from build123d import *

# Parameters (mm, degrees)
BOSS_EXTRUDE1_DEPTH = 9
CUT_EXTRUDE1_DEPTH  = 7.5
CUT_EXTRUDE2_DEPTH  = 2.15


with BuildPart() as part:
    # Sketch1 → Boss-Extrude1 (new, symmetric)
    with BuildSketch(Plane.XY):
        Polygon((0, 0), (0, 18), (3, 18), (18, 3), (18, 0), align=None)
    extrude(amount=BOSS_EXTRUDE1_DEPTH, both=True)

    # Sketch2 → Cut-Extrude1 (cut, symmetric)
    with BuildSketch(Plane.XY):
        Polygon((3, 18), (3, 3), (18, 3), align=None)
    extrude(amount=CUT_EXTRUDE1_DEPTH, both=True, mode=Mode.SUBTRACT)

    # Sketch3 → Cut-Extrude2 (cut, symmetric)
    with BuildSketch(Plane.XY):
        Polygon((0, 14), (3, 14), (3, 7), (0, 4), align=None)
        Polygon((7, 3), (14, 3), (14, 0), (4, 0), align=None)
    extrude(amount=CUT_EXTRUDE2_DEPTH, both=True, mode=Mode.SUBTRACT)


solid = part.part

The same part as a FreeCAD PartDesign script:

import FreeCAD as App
import Part
import Sketcher

V = App.Vector


def add_polygon(sketch, points):
    """Adds a closed chain of lines whose ends are joined by coincident constraints."""
    first, n = sketch.GeometryCount, len(points)
    for a, b in zip(points, points[1:] + points[:1]):
        sketch.addGeometry(Part.LineSegment(App.Vector(*a, 0), App.Vector(*b, 0)), False)
    for i in range(n):
        sketch.addConstraint(Sketcher.Constraint("Coincident", first + i, 2, first + (i + 1) % n, 1))

doc = App.newDocument("Part")
body = doc.addObject("PartDesign::Body", "Body")

# Sketch on XY plane
sketch1 = doc.addObject("Sketcher::SketchObject", "Sketch")
body.addObject(sketch1)
sketch1.AttachmentSupport = (doc.XY_Plane, [""])
sketch1.MapMode = "FlatFace"
add_polygon(sketch1, [(0, 18), (0, 0), (18, 0), (18, 3), (3, 18)])  # lines 0-4
sketch1.addConstraint([
    Sketcher.Constraint("Vertical", 0),
    Sketcher.Constraint("Horizontal", 1),
    Sketcher.Constraint("Vertical", 2),
    Sketcher.Constraint("Horizontal", 4),
    Sketcher.Constraint("Coincident", 0, 2, -1, 1),
    Sketcher.Constraint("Equal", 1, 0),
    Sketcher.Constraint("Equal", 4, 2),
    Sketcher.Constraint("DistanceX", 1, 1, 1, 2, 18.0),
    Sketcher.Constraint("DistanceX", 4, 2, 4, 1, 3.0),
])
pad1 = doc.addObject("PartDesign::Pad", "Pad")
body.addObject(pad1)
pad1.Profile = sketch1
pad1.Length = 18
pad1.Midplane = True

# Sketch on XY plane
sketch2 = doc.addObject("Sketcher::SketchObject", "Sketch001")
body.addObject(sketch2)
sketch2.AttachmentSupport = (doc.XY_Plane, [""])
sketch2.MapMode = "FlatFace"
add_polygon(sketch2, [(3, 18), (3, 3), (18, 3)])  # lines 0-2
sketch2.addConstraint([
    Sketcher.Constraint("Vertical", 0),
    Sketcher.Constraint("Horizontal", 1),
    Sketcher.Constraint("Equal", 1, 0),
    Sketcher.Constraint("DistanceX", 1, 1, 1, 2, 15.0),
    Sketcher.Constraint("DistanceX", -1, 1, 0, 2, 3.0),
    Sketcher.Constraint("DistanceY", -1, 1, 0, 2, 3.0),
])
pocket1 = doc.addObject("PartDesign::Pocket", "Pocket")
body.addObject(pocket1)
pocket1.Profile = sketch2
pocket1.Length = 15
pocket1.Midplane = True

# Sketch on XY plane
sketch3 = doc.addObject("Sketcher::SketchObject", "Sketch002")
body.addObject(sketch3)
sketch3.AttachmentSupport = (doc.XY_Plane, [""])
sketch3.MapMode = "FlatFace"
add_polygon(sketch3, [(3, 14), (0, 14), (0, 4), (3, 7)])  # lines 0-3
add_polygon(sketch3, [(14, 3), (7, 3), (4, 0), (14, 0)])  # lines 4-7
sketch3.addConstraint([
    Sketcher.Constraint("Horizontal", 0),
    Sketcher.Constraint("Vertical", 1),
    Sketcher.Constraint("Vertical", 3),
    Sketcher.Constraint("Horizontal", 4),
    Sketcher.Constraint("Horizontal", 6),
    Sketcher.Constraint("Vertical", 7),
    Sketcher.Constraint("PointOnObject", 0, 2, -2),
    Sketcher.Constraint("PointOnObject", 5, 2, -1),
    Sketcher.Constraint("Parallel", 2, 5),
    Sketcher.Constraint("Equal", 6, 1),
    Sketcher.Constraint("Equal", 4, 3),
    Sketcher.Constraint("Equal", 0, 7),
    Sketcher.Constraint("DistanceX", 0, 2, 0, 1, 3.0),
    Sketcher.Constraint("DistanceX", 4, 2, 4, 1, 7.0),
    Sketcher.Constraint("DistanceY", -1, 1, 0, 2, 14.0),
    Sketcher.Constraint("DistanceX", -1, 1, 4, 2, 7.0),
])
pocket2 = doc.addObject("PartDesign::Pocket", "Pocket001")
body.addObject(pocket2)
pocket2.Profile = sketch3
pocket2.Length = 4.3
pocket2.Midplane = True

doc.recompute()
